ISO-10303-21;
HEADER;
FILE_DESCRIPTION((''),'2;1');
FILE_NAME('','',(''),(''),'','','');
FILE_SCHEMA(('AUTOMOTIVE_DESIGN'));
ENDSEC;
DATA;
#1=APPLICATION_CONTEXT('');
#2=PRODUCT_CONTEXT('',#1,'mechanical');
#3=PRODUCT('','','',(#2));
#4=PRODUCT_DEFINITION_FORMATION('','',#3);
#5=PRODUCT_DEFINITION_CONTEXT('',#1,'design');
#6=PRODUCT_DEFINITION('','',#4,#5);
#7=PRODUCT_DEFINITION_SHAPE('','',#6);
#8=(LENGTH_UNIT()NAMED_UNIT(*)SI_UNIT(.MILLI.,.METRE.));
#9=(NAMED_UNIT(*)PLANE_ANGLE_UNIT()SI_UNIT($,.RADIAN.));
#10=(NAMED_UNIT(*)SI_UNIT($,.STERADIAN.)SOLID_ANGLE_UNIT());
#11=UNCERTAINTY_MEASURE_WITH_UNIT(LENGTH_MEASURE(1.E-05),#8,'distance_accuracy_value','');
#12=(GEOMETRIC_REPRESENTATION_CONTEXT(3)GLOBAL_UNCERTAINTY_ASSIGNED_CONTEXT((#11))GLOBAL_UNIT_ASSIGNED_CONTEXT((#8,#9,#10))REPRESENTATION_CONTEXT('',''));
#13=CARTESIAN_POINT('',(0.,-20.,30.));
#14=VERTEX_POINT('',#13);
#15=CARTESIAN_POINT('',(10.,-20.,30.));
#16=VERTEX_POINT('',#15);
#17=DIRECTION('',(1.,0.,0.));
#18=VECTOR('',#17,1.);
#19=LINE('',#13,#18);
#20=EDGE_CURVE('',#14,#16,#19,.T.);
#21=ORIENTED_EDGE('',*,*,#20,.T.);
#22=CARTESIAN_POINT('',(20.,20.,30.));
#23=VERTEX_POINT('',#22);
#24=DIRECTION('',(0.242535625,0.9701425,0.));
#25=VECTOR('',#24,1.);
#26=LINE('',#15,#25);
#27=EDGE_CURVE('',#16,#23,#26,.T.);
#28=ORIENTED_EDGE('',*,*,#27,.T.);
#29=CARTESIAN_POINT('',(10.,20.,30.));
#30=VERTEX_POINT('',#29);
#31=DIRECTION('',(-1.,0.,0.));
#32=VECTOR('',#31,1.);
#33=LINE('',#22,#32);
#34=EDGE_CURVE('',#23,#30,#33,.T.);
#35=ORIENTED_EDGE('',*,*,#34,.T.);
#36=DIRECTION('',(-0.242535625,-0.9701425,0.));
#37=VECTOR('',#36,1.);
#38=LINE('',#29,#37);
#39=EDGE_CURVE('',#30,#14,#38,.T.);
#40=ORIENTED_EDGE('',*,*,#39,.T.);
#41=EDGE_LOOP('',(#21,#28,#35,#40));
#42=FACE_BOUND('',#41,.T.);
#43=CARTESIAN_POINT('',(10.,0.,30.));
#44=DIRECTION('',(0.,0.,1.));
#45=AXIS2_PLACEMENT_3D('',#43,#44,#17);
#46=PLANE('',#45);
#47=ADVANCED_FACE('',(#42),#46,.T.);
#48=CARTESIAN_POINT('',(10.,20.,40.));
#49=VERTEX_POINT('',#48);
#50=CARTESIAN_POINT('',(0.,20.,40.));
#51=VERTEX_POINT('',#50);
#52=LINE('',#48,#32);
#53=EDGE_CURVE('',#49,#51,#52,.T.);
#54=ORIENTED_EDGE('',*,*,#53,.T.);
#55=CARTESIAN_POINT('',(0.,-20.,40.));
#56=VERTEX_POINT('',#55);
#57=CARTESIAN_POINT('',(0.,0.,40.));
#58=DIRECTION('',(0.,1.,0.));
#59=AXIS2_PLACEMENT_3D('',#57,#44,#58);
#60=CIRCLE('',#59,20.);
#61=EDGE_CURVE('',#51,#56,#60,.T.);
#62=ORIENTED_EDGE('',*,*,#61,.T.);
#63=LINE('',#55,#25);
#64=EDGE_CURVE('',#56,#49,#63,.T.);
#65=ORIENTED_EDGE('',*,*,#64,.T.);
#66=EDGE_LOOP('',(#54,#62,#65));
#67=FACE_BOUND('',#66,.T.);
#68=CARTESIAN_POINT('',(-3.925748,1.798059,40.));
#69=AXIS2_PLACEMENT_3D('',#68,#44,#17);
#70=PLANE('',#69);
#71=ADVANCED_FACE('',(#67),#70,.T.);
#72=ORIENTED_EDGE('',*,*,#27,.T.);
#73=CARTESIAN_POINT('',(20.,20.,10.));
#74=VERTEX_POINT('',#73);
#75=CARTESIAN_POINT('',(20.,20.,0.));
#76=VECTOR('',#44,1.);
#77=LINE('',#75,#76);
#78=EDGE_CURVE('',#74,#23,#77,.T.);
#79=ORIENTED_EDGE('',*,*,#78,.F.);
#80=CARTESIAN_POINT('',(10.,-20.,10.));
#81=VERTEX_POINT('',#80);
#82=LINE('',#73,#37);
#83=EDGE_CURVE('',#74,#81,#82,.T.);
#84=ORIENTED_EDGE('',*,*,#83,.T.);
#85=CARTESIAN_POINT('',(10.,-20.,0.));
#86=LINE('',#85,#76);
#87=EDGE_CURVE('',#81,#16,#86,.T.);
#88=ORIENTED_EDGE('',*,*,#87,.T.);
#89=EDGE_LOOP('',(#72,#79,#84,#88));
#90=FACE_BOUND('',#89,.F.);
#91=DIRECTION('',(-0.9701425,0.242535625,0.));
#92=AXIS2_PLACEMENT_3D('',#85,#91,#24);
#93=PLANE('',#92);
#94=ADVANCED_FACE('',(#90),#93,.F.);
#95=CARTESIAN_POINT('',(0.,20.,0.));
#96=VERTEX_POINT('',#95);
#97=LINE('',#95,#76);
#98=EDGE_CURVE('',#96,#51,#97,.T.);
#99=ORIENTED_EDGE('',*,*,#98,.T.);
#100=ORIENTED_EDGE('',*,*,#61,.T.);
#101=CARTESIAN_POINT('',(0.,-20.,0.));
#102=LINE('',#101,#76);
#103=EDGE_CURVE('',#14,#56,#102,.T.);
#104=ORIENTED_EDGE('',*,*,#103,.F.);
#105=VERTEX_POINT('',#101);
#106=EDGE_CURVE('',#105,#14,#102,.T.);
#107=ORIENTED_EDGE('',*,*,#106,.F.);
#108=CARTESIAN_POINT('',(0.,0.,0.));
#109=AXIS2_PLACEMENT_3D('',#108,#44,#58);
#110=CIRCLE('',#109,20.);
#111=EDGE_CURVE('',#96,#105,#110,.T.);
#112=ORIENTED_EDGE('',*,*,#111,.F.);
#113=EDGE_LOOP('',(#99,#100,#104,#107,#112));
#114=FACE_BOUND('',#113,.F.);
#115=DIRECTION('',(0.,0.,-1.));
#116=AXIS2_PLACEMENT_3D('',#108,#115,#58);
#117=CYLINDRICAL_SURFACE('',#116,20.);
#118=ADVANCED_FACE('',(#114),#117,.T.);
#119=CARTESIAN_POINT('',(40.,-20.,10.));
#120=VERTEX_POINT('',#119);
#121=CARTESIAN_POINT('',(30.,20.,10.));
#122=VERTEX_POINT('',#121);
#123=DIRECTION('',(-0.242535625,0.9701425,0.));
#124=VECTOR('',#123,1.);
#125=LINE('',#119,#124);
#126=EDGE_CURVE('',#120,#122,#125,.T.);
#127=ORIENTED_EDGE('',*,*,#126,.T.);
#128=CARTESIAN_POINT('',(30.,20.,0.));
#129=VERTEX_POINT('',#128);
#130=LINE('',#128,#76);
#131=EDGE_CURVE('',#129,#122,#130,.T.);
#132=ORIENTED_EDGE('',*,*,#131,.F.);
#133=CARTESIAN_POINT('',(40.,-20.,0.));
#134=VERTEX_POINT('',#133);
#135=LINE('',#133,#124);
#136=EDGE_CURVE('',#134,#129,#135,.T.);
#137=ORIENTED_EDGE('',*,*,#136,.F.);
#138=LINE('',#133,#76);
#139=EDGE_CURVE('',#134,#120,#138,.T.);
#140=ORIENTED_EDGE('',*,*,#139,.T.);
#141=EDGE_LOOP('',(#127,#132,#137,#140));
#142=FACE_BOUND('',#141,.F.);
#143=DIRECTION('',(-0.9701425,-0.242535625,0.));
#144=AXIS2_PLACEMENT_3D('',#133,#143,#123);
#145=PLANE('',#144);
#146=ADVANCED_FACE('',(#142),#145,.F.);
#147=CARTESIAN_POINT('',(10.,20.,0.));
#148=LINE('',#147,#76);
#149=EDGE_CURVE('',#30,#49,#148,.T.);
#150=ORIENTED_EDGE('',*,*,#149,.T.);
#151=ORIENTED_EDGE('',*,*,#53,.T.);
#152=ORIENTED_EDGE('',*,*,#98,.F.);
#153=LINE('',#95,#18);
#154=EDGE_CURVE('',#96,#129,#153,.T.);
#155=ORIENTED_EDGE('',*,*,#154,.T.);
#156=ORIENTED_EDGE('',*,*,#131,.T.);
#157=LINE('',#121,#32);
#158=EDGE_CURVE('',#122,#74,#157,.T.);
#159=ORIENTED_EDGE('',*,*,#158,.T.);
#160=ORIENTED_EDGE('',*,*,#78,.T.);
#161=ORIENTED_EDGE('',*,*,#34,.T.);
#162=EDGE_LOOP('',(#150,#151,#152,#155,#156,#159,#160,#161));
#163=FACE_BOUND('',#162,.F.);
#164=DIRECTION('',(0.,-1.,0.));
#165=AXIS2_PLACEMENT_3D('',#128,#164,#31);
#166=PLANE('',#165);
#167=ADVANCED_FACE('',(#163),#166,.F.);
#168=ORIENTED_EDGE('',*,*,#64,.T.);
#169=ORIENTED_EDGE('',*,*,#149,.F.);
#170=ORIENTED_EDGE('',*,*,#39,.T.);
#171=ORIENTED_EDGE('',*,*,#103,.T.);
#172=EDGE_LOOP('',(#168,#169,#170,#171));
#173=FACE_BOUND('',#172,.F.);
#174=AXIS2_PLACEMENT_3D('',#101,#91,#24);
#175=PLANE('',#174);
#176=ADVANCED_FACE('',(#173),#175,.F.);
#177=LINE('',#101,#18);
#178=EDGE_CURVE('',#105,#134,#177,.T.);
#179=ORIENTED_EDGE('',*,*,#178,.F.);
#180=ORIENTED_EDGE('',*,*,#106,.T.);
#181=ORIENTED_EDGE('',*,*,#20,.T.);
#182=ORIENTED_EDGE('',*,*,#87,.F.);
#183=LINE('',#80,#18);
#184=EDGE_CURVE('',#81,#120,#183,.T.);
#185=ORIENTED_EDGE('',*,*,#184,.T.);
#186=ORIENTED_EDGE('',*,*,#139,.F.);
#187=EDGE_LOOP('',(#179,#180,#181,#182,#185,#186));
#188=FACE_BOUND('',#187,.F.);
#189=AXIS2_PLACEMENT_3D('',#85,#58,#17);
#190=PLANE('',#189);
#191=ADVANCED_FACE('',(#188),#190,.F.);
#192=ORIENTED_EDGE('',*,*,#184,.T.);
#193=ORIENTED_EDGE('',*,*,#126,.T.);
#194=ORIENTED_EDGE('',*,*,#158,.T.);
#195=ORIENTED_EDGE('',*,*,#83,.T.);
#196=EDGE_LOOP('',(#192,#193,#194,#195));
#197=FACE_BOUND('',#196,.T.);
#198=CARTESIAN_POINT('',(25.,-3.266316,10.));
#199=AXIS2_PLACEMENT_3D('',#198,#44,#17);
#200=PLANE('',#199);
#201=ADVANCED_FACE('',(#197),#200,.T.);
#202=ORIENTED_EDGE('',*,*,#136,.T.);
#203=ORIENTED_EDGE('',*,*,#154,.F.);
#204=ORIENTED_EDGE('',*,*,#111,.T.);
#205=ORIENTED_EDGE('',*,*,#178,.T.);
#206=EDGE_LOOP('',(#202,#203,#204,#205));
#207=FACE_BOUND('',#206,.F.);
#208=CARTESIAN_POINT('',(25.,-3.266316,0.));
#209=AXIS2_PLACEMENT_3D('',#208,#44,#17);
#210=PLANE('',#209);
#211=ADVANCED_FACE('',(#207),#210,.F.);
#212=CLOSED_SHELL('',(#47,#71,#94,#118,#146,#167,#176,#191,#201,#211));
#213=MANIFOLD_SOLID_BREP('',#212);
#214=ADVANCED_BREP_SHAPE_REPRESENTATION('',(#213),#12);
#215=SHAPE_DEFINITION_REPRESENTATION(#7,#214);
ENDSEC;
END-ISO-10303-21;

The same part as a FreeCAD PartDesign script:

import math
import FreeCAD as App
import Part
import Sketcher

V = App.Vector
Q = App.Units.Quantity


def add_polygon(sketch, points):
    """Adds a closed chain of lines whose ends are joined by coincident constraints."""
    first, n = sketch.GeometryCount, len(points)
    for a, b in zip(points, points[1:] + points[:1]):
        sketch.addGeometry(Part.LineSegment(App.Vector(*a, 0), App.Vector(*b, 0)), False)
    for i in range(n):
        sketch.addConstraint(Sketcher.Constraint("Coincident", first + i, 2, first + (i + 1) % n, 1))

doc = App.newDocument("Part")
body = doc.addObject("PartDesign::Body", "Body")

sketch1 = body.newObject("Sketcher::SketchObject", "Sketch")
sketch1.AttachmentSupport = (doc.getObject("XY_Plane"), [""])
sketch1.MapMode = "FlatFace"
sketch1.addGeometry([
    Part.LineSegment(V(10, 20, 0), V(0, 20, 0)),
    Part.ArcOfCircle(Part.Circle(V(0, 0, 0), V(0, 0, 1), 20), math.radians(90), math.radians(270)),
    Part.LineSegment(V(0, -20, 0), V(10, 20, 0)),
], False)
sketch1.addConstraint([
    Sketcher.Constraint("Tangent", 0, 2, 1, 1),
    Sketcher.Constraint("Coincident", 1, 2, 2, 1),
    Sketcher.Constraint("Coincident", 2, 2, 0, 1),
    Sketcher.Constraint("Horizontal", 0),
    Sketcher.Constraint("Coincident", 1, 3, -1, 1),
    Sketcher.Constraint("PointOnObject", 1, 2, -2),
    Sketcher.Constraint("Radius", 1, Q("20 mm")),
    Sketcher.Constraint("DistanceX", 0, 2, 0, 1, Q("10 mm")),
])
pad1 = body.newObject("PartDesign::Pad", "Pad")
pad1.Profile = sketch1
pad1.Length = 40

sketch2 = body.newObject("Sketcher::SketchObject", "Sketch001")
sketch2.AttachmentSupport = (doc.getObject("XY_Plane"), [""])
sketch2.MapMode = "FlatFace"
add_polygon(sketch2, [(10, 20), (0, -20), (10, -20), (20, 20)])
sketch2.addConstraint([
    Sketcher.Constraint("Horizontal", 1),
    Sketcher.Constraint("Horizontal", 3),
    Sketcher.Constraint("Symmetric", 1, 2, 3, 2, -1),
    Sketcher.Constraint("PointOnObject", 0, 2, -2),
    Sketcher.Constraint("Parallel", 0, 2),
    Sketcher.Constraint("DistanceX", 1, 1, 1, 2, Q("10 mm")),
    Sketcher.Constraint("DistanceY", 0, 2, -1, 1, Q("20 mm")),
])
pad2 = body.newObject("PartDesign::Pad", "Pad001")
pad2.Profile = sketch2
pad2.Length = 30

sketch3 = body.newObject("Sketcher::SketchObject", "Sketch002")
sketch3.AttachmentSupport = (doc.getObject("XY_Plane"), [""])
sketch3.MapMode = "FlatFace"
add_polygon(sketch3, [(20, 20), (10, -20), (40, -20), (30, 20)])
sketch3.addConstraint([
    Sketcher.Constraint("Horizontal", 1),
    Sketcher.Constraint("Horizontal", 3),
    Sketcher.Constraint("Equal", 0, 2),
    Sketcher.Constraint("DistanceX", 1, 1, 1, 2, Q("30 mm")),
    Sketcher.Constraint("DistanceX", 3, 2, 3, 1, Q("10 mm")),
    Sketcher.Constraint("DistanceX", -1, 1, 0, 2, Q("10 mm")),
    Sketcher.Constraint("DistanceY", 0, 2, -1, 1, Q("20 mm")),
    Sketcher.Constraint("DistanceY", -1, 1, 2, 2, Q("20 mm")),
])
pad3 = body.newObject("PartDesign::Pad", "Pad002")
pad3.Profile = sketch3
pad3.Length = 10

doc.recompute()
